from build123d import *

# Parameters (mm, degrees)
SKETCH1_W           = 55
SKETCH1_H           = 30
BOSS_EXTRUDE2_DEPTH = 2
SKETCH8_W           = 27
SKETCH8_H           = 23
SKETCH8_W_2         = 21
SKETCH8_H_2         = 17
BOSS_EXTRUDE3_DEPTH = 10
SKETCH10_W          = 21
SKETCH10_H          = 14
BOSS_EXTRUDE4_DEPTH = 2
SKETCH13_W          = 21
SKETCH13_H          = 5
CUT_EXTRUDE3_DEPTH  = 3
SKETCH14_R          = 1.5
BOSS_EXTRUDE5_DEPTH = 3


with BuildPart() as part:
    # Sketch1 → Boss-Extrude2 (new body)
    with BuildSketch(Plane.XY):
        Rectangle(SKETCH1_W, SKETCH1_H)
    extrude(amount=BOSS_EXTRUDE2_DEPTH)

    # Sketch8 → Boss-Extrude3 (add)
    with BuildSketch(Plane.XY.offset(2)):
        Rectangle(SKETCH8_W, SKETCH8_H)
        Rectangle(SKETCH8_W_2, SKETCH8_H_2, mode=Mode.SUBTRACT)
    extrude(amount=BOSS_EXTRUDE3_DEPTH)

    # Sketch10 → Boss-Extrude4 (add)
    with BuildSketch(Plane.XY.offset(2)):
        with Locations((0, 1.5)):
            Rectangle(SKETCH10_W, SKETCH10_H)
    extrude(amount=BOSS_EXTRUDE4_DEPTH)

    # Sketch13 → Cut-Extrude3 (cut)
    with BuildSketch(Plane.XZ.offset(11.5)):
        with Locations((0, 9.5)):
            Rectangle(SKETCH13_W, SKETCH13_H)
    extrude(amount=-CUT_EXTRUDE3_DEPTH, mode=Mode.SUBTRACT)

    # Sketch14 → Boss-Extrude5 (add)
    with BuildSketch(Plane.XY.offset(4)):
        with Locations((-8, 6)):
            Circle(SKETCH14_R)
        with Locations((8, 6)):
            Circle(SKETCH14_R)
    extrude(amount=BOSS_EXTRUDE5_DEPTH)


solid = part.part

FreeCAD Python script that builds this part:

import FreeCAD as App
import Part
import Sketcher

V = App.Vector

doc = App.newDocument("Part")
body = doc.addObject("PartDesign::Body", "Body")

# Sketch on XY plane
sketch1 = body.newObject("Sketcher::SketchObject", "Sketch")
sketch1.AttachmentSupport = (doc.getObject("XY_Plane"), [""])
sketch1.MapMode = "FlatFace"
sketch1.addGeometry([
    Part.LineSegment(V(-27.5, 15, 0), V(-27.5, -15, 0)),
    Part.LineSegment(V(-27.5, -15, 0), V(27.5, -15, 0)),
    Part.LineSegment(V(27.5, -15, 0), V(27.5, 15, 0)),
    Part.LineSegment(V(27.5, 15, 0), V(-27.5, 15, 0)),
], False)
sketch1.addConstraint([
    Sketcher.Constraint("Coincident", 0, 2, 1, 1),
    Sketcher.Constraint("Coincident", 1, 2, 2, 1),
    Sketcher.Constraint("Coincident", 2, 2, 3, 1),
    Sketcher.Constraint("Coincident", 3, 2, 0, 1),
    Sketcher.Constraint("Vertical", 0),
    Sketcher.Constraint("Horizontal", 1),
    Sketcher.Constraint("Vertical", 2),
    Sketcher.Constraint("Horizontal", 3),
    Sketcher.Constraint("Symmetric", 0, 2, 2, 2, -1, 1),
    Sketcher.Constraint("DistanceX", 1, 1, 1, 2, 55.0),
    Sketcher.Constraint("DistanceY", 0, 2, 0, 1, 30.0),
])
pad1 = body.newObject("PartDesign::Pad", "Pad")
pad1.Profile = sketch1
pad1.Length = 2

# Sketch on XY plane
sketch2 = body.newObject("Sketcher::SketchObject", "Sketch001")
sketch2.AttachmentSupport = (doc.getObject("XY_Plane"), [""])
sketch2.MapMode = "FlatFace"
sketch2.AttachmentOffset = App.Placement(V(0, 0, 2), App.Rotation())
sketch2.addGeometry([
    Part.LineSegment(V(-13.5, 11.5, 0), V(-13.5, -11.5, 0)),  # 0
    Part.LineSegment(V(-13.5, -11.5, 0), V(13.5, -11.5, 0)),  # 1
    Part.LineSegment(V(13.5, -11.5, 0), V(13.5, 11.5, 0)),  # 2
    Part.LineSegment(V(13.5, 11.5, 0), V(-13.5, 11.5, 0)),  # 3
    Part.LineSegment(V(10.5, -8.5, 0), V(-10.5, -8.5, 0)),  # 4
    Part.LineSegment(V(-10.5, -8.5, 0), V(-10.5, 8.5, 0)),  # 5
    Part.LineSegment(V(-10.5, 8.5, 0), V(10.5, 8.5, 0)),  # 6
    Part.LineSegment(V(10.5, 8.5, 0), V(10.5, -8.5, 0)),  # 7
], False)
sketch2.addConstraint([
    Sketcher.Constraint("Coincident", 0, 2, 1, 1),
    Sketcher.Constraint("Coincident", 1, 2, 2, 1),
    Sketcher.Constraint("Coincident", 2, 2, 3, 1),
    Sketcher.Constraint("Coincident", 3, 2, 0, 1),
    Sketcher.Constraint("Coincident", 4, 2, 5, 1),
    Sketcher.Constraint("Coincident", 5, 2, 6, 1),
    Sketcher.Constraint("Coincident", 6, 2, 7, 1),
    Sketcher.Constraint("Coincident", 7, 2, 4, 1),
    Sketcher.Constraint("Vertical", 0),
    Sketcher.Constraint("Horizontal", 1),
    Sketcher.Constraint("Vertical", 2),
    Sketcher.Constraint("Horizontal", 3),
    Sketcher.Constraint("Horizontal", 4),
    Sketcher.Constraint("Vertical", 5),
    Sketcher.Constraint("Horizontal", 6),
    Sketcher.Constraint("Vertical", 7),
    Sketcher.Constraint("Symmetric", 0, 2, 2, 2, -1, 1),
    Sketcher.Constraint("Symmetric", 4, 2, 6, 2, -1, 1),
    Sketcher.Constraint("DistanceX", 1, 1, 1, 2, 27.0),
    Sketcher.Constraint("DistanceX", 4, 2, 4, 1, 21.0),
    Sketcher.Constraint("DistanceY", 0, 2, 0, 1, 23.0),
    Sketcher.Constraint("DistanceY", 5, 1, 5, 2, 17.0),
])
pad2 = body.newObject("PartDesign::Pad", "Pad001")
pad2.Profile = sketch2
pad2.Length = 10

# Sketch on XY plane
sketch3 = body.newObject("Sketcher::SketchObject", "Sketch002")
sketch3.AttachmentSupport = (doc.getObject("XY_Plane"), [""])
sketch3.MapMode = "FlatFace"
sketch3.AttachmentOffset = App.Placement(V(0, 0, 2), App.Rotation())
sketch3.addGeometry([
    Part.LineSegment(V(-10.5, 8.5, 0), V(-10.5, -5.5, 0)),
    Part.LineSegment(V(-10.5, -5.5, 0), V(10.5, -5.5, 0)),
    Part.LineSegment(V(10.5, -5.5, 0), V(10.5, 8.5, 0)),
    Part.LineSegment(V(10.5, 8.5, 0), V(-10.5, 8.5, 0)),
], False)
sketch3.addConstraint([
    Sketcher.Constraint("Coincident", 0, 2, 1, 1),
    Sketcher.Constraint("Coincident", 1, 2, 2, 1),
    Sketcher.Constraint("Coincident", 2, 2, 3, 1),
    Sketcher.Constraint("Coincident", 3, 2, 0, 1),
    Sketcher.Constraint("Vertical", 0),
    Sketcher.Constraint("Horizontal", 1),
    Sketcher.Constraint("Vertical", 2),
    Sketcher.Constraint("Horizontal", 3),
    Sketcher.Constraint("DistanceX", 1, 1, 1, 2, 21.0),
    Sketcher.Constraint("DistanceY", 0, 2, 0, 1, 14.0),
    Sketcher.Constraint("DistanceX", 0, 2, -1, 1, 10.5),
    Sketcher.Constraint("DistanceY", 0, 2, -1, 1, 5.5),
])
pad3 = body.newObject("PartDesign::Pad", "Pad002")
pad3.Profile = sketch3
pad3.Length = 2

# Sketch on XZ plane
sketch4 = body.newObject("Sketcher::SketchObject", "Sketch003")
sketch4.AttachmentSupport = (doc.getObject("XZ_Plane"), [""])
sketch4.MapMode = "FlatFace"
sketch4.AttachmentOffset = App.Placement(V(0, 0, 11.5), App.Rotation())
sketch4.addGeometry([
    Part.LineSegment(V(-10.5, 12, 0), V(-10.5, 7, 0)),
    Part.LineSegment(V(-10.5, 7, 0), V(10.5, 7, 0)),
    Part.LineSegment(V(10.5, 7, 0), V(10.5, 12, 0)),
    Part.LineSegment(V(10.5, 12, 0), V(-10.5, 12, 0)),
], False)
sketch4.addConstraint([
    Sketcher.Constraint("Coincident", 0, 2, 1, 1),
    Sketcher.Constraint("Coincident", 1, 2, 2, 1),
    Sketcher.Constraint("Coincident", 2, 2, 3, 1),
    Sketcher.Constraint("Coincident", 3, 2, 0, 1),
    Sketcher.Constraint("Vertical", 0),
    Sketcher.Constraint("Horizontal", 1),
    Sketcher.Constraint("Vertical", 2),
    Sketcher.Constraint("Horizontal", 3),
    Sketcher.Constraint("DistanceX", 1, 1, 1, 2, 21.0),
    Sketcher.Constraint("DistanceY", 0, 2, 0, 1, 5.0),
    Sketcher.Constraint("DistanceY", -1, 1, 0, 2, 7.0),
    Sketcher.Constraint("DistanceX", 0, 2, -1, 1, 10.5),
])
pocket1 = body.newObject("PartDesign::Pocket", "Pocket")
pocket1.Profile = sketch4
pocket1.Length = 3

# Sketch on XY plane
sketch5 = body.newObject("Sketcher::SketchObject", "Sketch004")
sketch5.AttachmentSupport = (doc.getObject("XY_Plane"), [""])
sketch5.MapMode = "FlatFace"
sketch5.AttachmentOffset = App.Placement(V(0, 0, 4), App.Rotation())
sketch5.addGeometry([
    Part.Circle(V(-8, 6, 0), V(0, 0, 1), 1.5),
    Part.Circle(V(8, 6, 0), V(0, 0, 1), 1.5),
], False)
sketch5.addConstraint([
    Sketcher.Constraint("Equal", 0, 1),
    Sketcher.Constraint("Symmetric", 0, 3, 1, 3, -2),
    Sketcher.Constraint("Diameter", 0, 3.0),
    Sketcher.Constraint("DistanceX", 0, 3, -1, 1, 8.0),
    Sketcher.Constraint("DistanceY", -1, 1, 0, 3, 6.0),
])
pad4 = body.newObject("PartDesign::Pad", "Pad003")
pad4.Profile = sketch5
pad4.Length = 3

doc.recompute()
